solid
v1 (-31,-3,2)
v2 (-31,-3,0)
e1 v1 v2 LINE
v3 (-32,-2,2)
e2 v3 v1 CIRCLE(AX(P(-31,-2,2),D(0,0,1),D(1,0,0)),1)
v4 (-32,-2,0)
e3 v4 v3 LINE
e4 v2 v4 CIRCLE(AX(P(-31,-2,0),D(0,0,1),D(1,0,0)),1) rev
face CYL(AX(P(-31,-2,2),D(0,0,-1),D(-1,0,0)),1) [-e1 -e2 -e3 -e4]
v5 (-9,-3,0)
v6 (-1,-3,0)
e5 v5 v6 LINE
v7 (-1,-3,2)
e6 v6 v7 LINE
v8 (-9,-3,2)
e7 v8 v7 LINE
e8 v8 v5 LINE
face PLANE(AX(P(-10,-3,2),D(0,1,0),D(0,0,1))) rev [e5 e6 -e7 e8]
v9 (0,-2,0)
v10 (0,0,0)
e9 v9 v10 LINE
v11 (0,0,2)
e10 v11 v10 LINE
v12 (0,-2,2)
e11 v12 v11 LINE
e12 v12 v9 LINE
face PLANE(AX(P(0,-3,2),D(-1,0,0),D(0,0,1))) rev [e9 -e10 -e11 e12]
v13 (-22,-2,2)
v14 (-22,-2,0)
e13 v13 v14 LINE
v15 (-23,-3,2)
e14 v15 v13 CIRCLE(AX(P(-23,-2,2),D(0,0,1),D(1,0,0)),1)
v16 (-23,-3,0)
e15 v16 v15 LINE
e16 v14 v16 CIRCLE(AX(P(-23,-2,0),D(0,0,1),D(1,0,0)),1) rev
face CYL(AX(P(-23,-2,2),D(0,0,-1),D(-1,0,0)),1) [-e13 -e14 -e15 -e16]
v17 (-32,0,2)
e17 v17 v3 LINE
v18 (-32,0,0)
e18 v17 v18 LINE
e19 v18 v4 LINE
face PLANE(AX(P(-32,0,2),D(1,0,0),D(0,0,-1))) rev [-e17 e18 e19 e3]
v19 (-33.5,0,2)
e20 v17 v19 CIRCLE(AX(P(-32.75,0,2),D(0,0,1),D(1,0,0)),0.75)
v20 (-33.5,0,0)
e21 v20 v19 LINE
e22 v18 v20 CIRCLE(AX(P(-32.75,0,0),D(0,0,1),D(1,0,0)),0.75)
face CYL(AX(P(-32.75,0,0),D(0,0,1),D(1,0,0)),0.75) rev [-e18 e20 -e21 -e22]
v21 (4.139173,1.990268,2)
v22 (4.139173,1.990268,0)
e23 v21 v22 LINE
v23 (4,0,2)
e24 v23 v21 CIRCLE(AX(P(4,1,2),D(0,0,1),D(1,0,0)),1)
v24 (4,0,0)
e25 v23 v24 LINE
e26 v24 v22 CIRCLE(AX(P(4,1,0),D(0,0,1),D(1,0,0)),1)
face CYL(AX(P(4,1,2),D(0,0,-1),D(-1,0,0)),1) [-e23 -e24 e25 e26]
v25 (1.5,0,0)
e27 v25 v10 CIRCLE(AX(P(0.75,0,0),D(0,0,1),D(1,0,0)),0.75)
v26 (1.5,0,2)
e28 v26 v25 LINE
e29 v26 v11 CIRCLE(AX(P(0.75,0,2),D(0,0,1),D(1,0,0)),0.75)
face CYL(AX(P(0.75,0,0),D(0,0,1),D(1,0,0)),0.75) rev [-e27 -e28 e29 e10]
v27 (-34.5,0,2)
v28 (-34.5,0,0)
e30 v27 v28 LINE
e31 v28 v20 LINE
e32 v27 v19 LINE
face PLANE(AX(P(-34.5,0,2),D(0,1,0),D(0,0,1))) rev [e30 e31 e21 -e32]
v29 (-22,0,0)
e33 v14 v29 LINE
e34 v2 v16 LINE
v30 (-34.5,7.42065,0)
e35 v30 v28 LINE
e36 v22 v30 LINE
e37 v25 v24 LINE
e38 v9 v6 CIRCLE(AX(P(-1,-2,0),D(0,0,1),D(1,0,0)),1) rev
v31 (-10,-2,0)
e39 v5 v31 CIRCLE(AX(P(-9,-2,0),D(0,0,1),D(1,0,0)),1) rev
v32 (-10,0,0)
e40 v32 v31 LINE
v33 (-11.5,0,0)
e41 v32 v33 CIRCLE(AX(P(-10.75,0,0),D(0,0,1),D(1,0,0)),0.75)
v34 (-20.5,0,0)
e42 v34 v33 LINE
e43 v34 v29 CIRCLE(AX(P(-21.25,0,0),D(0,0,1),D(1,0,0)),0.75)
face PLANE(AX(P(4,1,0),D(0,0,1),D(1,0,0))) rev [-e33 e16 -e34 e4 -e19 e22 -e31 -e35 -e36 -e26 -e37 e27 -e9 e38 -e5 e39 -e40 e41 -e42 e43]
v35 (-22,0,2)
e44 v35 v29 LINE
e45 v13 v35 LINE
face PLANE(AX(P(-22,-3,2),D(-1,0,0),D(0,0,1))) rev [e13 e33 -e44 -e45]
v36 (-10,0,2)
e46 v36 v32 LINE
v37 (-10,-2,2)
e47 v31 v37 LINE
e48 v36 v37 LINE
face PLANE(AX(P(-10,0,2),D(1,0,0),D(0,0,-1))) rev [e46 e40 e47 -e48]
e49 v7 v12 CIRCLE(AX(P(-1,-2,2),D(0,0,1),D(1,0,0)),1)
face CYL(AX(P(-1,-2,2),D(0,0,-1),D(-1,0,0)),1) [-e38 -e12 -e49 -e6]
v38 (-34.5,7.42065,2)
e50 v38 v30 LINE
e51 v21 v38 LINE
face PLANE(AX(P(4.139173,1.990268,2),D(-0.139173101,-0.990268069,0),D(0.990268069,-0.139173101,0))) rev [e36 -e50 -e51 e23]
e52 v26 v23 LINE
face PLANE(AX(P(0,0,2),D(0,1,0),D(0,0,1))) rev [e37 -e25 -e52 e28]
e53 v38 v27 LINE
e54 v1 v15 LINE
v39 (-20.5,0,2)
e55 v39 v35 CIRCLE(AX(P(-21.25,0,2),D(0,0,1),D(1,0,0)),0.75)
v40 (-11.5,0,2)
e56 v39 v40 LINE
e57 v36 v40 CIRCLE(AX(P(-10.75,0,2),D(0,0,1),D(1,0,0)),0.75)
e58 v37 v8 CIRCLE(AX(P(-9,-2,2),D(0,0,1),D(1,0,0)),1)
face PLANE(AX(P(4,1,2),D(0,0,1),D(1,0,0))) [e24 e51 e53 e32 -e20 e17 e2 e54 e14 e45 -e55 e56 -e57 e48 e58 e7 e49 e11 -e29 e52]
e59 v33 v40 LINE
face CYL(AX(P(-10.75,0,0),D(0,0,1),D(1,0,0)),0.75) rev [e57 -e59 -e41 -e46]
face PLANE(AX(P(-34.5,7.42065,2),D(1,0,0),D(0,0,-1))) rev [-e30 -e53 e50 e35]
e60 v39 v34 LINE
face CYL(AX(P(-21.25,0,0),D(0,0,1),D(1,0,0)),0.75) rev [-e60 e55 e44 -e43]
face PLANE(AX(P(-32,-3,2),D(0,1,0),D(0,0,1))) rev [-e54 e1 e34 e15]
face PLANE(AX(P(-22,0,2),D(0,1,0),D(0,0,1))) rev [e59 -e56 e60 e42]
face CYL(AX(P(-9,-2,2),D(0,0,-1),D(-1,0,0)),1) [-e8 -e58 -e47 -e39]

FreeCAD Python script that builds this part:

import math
import FreeCAD as App
import Part
import Sketcher
Q = App.Units.Quantity


def edges_at(feature, points):
    """Names of the edges that pass closest to the given points."""
    edges = feature.Shape.Edges
    near = lambda p: min(range(len(edges)), key=lambda i: edges[i].distToShape(Part.Vertex(*p))[0])
    return sorted({f"Edge{near(p) + 1}" for p in points})

doc = App.newDocument("Part")
params = doc.addObject("Spreadsheet::Sheet", "Params")
for row, (alias, value) in enumerate([
    ("sketch1_radius", "1 mm"),
    ("sketch1_width", "10 mm"),
    ("sketch1_width2", "12 mm"),
    ("sketch1_width3", "4 mm"),
    ("sketch1_height", "3 mm"),
    ("pad1_length", "2 mm"),
    ("sketch2_diameter", "1.5 mm"),
    ("fillet_radius", "1 mm"),
], start=1):
    params.set(f"A{row}", alias)
    params.set(f"B{row}", "=" + value)
    params.setAlias(f"B{row}", alias)

body = doc.addObject("PartDesign::Body", "Body")

sketch1 = body.newObject("Sketcher::SketchObject", "Sketch")
sketch1.AttachmentSupport = (doc.getObject("XY_Plane"), [""])
sketch1.MapMode = "FlatFace"
sketch1.addGeometry(Part.LineSegment(App.Vector(4.1, 2, 0), App.Vector(-34.5, 7.4, 0)), False)
sketch1.addGeometry(Part.LineSegment(App.Vector(-34.5, 7.4, 0), App.Vector(-34.5, 0, 0)), False)
sketch1.addGeometry(Part.LineSegment(App.Vector(-34.5, 0, 0), App.Vector(-32, 0, 0)), False)
sketch1.addGeometry(Part.LineSegment(App.Vector(-32, 0, 0), App.Vector(-32, -3, 0)), False)
sketch1.addGeometry(Part.LineSegment(App.Vector(-32, -3, 0), App.Vector(-22, -3, 0)), False)
sketch1.addGeometry(Part.LineSegment(App.Vector(-22, -3, 0), App.Vector(-22, 0, 0)), False)
sketch1.addGeometry(Part.LineSegment(App.Vector(-22, 0, 0), App.Vector(-10, 0, 0)), False)
sketch1.addGeometry(Part.LineSegment(App.Vector(-10, 0, 0), App.Vector(-10, -3, 0)), False)
sketch1.addGeometry(Part.LineSegment(App.Vector(-10, -3, 0), App.Vector(0, -3, 0)), False)
sketch1.addGeometry(Part.LineSegment(App.Vector(0, -3, 0), App.Vector(0, 0, 0)), False)
sketch1.addGeometry(Part.LineSegment(App.Vector(0, 0, 0), App.Vector(4, 0, 0)), False)
sketch1.addGeometry(Part.ArcOfCircle(Part.Circle(App.Vector(4, 1, 0), App.Vector(0, 0, 1), 1), math.radians(-90), math.radians(82)), False)
sketch1.addConstraint(Sketcher.Constraint("Coincident", 0, 2, 1, 1))
sketch1.addConstraint(Sketcher.Constraint("Coincident", 1, 2, 2, 1))
sketch1.addConstraint(Sketcher.Constraint("Coincident", 2, 2, 3, 1))
sketch1.addConstraint(Sketcher.Constraint("Coincident", 3, 2, 4, 1))
sketch1.addConstraint(Sketcher.Constraint("Coincident", 4, 2, 5, 1))
sketch1.addConstraint(Sketcher.Constraint("Coincident", 5, 2, 6, 1))
sketch1.addConstraint(Sketcher.Constraint("Coincident", 6, 2, 7, 1))
sketch1.addConstraint(Sketcher.Constraint("Coincident", 7, 2, 8, 1))
sketch1.addConstraint(Sketcher.Constraint("Coincident", 8, 2, 9, 1))
sketch1.addConstraint(Sketcher.Constraint("Coincident", 9, 2, 10, 1))
sketch1.addConstraint(Sketcher.Constraint("Tangent", 10, 2, 11, 1))
sketch1.addConstraint(Sketcher.Constraint("Tangent", 11, 2, 0, 1))
sketch1.addConstraint(Sketcher.Constraint("Vertical", 1))
sketch1.addConstraint(Sketcher.Constraint("Horizontal", 2))
sketch1.addConstraint(Sketcher.Constraint("Vertical", 3))
sketch1.addConstraint(Sketcher.Constraint("Horizontal", 4))
sketch1.addConstraint(Sketcher.Constraint("Vertical", 5))
sketch1.addConstraint(Sketcher.Constraint("Horizontal", 6))
sketch1.addConstraint(Sketcher.Constraint("Vertical", 7))
sketch1.addConstraint(Sketcher.Constraint("Horizontal", 8))
sketch1.addConstraint(Sketcher.Constraint("Vertical", 9))
sketch1.addConstraint(Sketcher.Constraint("Horizontal", 10))
sketch1.addConstraint(Sketcher.Constraint("Coincident", 9, 2, -1, 1))
sketch1.addConstraint(Sketcher.Constraint("PointOnObject", 1, 2, -1))
sketch1.addConstraint(Sketcher.Constraint("PointOnObject", 5, 2, -1))
sketch1.addConstraint(Sketcher.Constraint("Horizontal", 4, 2, 7, 2))
sketch1.addConstraint(Sketcher.Constraint("Equal", 4, 8))
sketch1.addConstraint(Sketcher.Constraint("Radius", 11, 1.0))
sketch1.addConstraint(Sketcher.Constraint("DistanceX", 4, 1, 4, 2, 10.0))
sketch1.addConstraint(Sketcher.Constraint("DistanceX", 6, 1, 6, 2, 12.0))
sketch1.addConstraint(Sketcher.Constraint("DistanceX", 10, 1, 10, 2, 4.0))
sketch1.addConstraint(Sketcher.Constraint("DistanceY", 3, 2, 3, 1, 3.0))
sketch1.addConstraint(Sketcher.Constraint("Angle", 0, Q("172 deg")))
sketch1.addConstraint(Sketcher.Constraint("DistanceX", 2, 1, 2, 2, 2.5))
sketch1.setExpression("Constraints[27]", "Params.sketch1_radius")
sketch1.setExpression("Constraints[28]", "Params.sketch1_width")
sketch1.setExpression("Constraints[29]", "Params.sketch1_width2")
sketch1.setExpression("Constraints[30]", "Params.sketch1_width3")
sketch1.setExpression("Constraints[31]", "Params.sketch1_height")
pad1 = body.newObject("PartDesign::Pad", "Pad")
pad1.Profile = sketch1
pad1.setExpression("Length", "Params.pad1_length")

sketch2 = body.newObject("Sketcher::SketchObject", "Sketch001")
sketch2.AttachmentSupport = (doc.getObject("XY_Plane"), [""])
sketch2.MapMode = "FlatFace"
sketch2.AttachmentOffset = App.Placement(App.Vector(0, 0, 2), App.Rotation())
sketch2.addGeometry(Part.Circle(App.Vector(-32.8, 0, 0), App.Vector(0, 0, 1), 0.8), False)
sketch2.addGeometry(Part.Circle(App.Vector(-21.2, 0, 0), App.Vector(0, 0, 1), 0.8), False)
sketch2.addGeometry(Part.Circle(App.Vector(-10.8, 0, 0), App.Vector(0, 0, 1), 0.8), False)
sketch2.addGeometry(Part.Circle(App.Vector(0.8, 0, 0), App.Vector(0, 0, 1), 0.8), False)
sketch2.addConstraint(Sketcher.Constraint("Equal", 0, 1))
sketch2.addConstraint(Sketcher.Constraint("Equal", 1, 2))
sketch2.addConstraint(Sketcher.Constraint("Equal", 2, 3))
sketch2.addConstraint(Sketcher.Constraint("PointOnObject", 0, 3, -1))
sketch2.addConstraint(Sketcher.Constraint("PointOnObject", 1, 3, -1))
sketch2.addConstraint(Sketcher.Constraint("PointOnObject", 2, 3, -1))
sketch2.addConstraint(Sketcher.Constraint("PointOnObject", 3, 3, -1))
sketch2.addConstraint(Sketcher.Constraint("Diameter", 0, 1.5))
sketch2.addConstraint(Sketcher.Constraint("DistanceX", 0, 3, 2, 3, 22.0))
sketch2.addConstraint(Sketcher.Constraint("DistanceX", 1, 3, 3, 3, 22.0))
sketch2.addConstraint(Sketcher.Constraint("DistanceX", 0, 3, 1, 3, 11.5))
sketch2.addConstraint(Sketcher.Constraint("DistanceX", 0, 3, -1, 1, 32.75))
sketch2.setExpression("Constraints[7]", "Params.sketch2_diameter")
pocket1 = body.newObject("PartDesign::Pocket", "Pocket")
pocket1.Profile = sketch2
pocket1.Type = "ThroughAll"
doc.recompute()

fillet = body.newObject("PartDesign::Fillet", "Fillet")
fillet.Base = (pocket1, edges_at(pocket1, [
    (0, -3, 1),
    (-10, -3, 1),
    (-22, -3, 1),
    (-32, -3, 1),
]))
fillet.setExpression("Radius", "Params.fillet_radius")

doc.recompute()
